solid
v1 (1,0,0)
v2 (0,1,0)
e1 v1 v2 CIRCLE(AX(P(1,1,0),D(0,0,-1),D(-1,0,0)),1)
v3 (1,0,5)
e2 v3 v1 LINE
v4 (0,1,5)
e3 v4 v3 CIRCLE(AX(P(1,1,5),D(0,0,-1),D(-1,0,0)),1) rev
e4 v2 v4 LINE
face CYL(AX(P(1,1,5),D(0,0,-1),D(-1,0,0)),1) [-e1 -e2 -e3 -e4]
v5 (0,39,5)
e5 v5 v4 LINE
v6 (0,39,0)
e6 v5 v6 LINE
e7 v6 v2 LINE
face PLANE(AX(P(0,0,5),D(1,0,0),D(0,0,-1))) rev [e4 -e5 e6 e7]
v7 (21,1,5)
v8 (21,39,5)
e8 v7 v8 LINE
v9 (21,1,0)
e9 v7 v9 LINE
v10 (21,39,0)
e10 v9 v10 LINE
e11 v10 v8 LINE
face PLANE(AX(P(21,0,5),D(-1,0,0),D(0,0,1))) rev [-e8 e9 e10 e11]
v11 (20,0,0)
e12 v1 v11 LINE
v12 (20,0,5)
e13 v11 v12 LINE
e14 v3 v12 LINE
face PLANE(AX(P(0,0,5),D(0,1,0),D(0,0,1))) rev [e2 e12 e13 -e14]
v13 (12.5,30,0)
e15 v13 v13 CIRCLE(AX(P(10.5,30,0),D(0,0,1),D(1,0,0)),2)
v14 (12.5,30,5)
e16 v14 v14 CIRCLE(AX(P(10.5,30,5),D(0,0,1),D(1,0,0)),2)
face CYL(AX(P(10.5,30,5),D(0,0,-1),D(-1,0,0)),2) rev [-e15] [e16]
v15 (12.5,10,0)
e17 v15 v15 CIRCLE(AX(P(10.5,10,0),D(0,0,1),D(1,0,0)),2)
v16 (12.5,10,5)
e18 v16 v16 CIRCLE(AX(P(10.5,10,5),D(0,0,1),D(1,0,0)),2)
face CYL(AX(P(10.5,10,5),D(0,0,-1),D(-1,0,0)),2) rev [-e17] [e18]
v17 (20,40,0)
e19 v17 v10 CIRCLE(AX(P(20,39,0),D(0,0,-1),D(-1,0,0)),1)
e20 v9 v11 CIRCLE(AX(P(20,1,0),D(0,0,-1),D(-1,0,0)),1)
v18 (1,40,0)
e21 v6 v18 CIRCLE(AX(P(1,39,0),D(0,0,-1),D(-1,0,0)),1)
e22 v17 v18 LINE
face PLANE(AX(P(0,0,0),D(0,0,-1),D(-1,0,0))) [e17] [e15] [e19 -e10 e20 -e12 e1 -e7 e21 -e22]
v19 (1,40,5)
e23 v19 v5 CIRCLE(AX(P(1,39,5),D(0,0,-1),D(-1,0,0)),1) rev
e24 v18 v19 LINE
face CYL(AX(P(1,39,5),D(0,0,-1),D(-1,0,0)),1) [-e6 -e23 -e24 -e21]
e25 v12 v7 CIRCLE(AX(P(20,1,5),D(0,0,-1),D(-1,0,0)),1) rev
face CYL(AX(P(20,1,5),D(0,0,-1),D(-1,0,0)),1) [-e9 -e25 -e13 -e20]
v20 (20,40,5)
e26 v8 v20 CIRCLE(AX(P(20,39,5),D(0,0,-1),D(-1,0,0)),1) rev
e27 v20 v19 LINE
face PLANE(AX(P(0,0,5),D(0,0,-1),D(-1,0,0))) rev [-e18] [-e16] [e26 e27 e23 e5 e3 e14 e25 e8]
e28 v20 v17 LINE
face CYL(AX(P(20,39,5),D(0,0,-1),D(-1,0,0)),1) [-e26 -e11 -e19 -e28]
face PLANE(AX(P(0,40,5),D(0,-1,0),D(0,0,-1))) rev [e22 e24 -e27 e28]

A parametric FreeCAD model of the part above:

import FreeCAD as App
import Part
import Sketcher


def edges_at(feature, points):
    """Names of the edges that pass closest to the given points."""
    edges = feature.Shape.Edges
    near = lambda p: min(range(len(edges)), key=lambda i: edges[i].distToShape(Part.Vertex(*p))[0])
    return sorted({f"Edge{near(p) + 1}" for p in points})

doc = App.newDocument("Part")
body = doc.addObject("PartDesign::Body", "Body")

sketch1 = body.newObject("Sketcher::SketchObject", "Sketch")
sketch1.AttachmentSupport = (doc.getObject("XY_Plane"), [""])
sketch1.MapMode = "FlatFace"
sketch1.addGeometry([
    Part.LineSegment(App.Vector(0, 40, 0), App.Vector(0, 0, 0)),
    Part.LineSegment(App.Vector(0, 0, 0), App.Vector(21, 0, 0)),
    Part.LineSegment(App.Vector(21, 0, 0), App.Vector(21, 40, 0)),
    Part.LineSegment(App.Vector(21, 40, 0), App.Vector(0, 40, 0)),
    Part.Circle(App.Vector(10.5, 10, 0), App.Vector(0, 0, 1), 2),
    Part.Circle(App.Vector(10.5, 30, 0), App.Vector(0, 0, 1), 2),
], False)
sketch1.addConstraint([
    Sketcher.Constraint("Coincident", 0, 2, 1, 1),
    Sketcher.Constraint("Coincident", 1, 2, 2, 1),
    Sketcher.Constraint("Coincident", 2, 2, 3, 1),
    Sketcher.Constraint("Coincident", 3, 2, 0, 1),
    Sketcher.Constraint("Vertical", 0),
    Sketcher.Constraint("Horizontal", 1),
    Sketcher.Constraint("Vertical", 2),
    Sketcher.Constraint("Horizontal", 3),
    Sketcher.Constraint("Coincident", 0, 2, -1, 1),
    Sketcher.Constraint("Equal", 4, 5),
    Sketcher.Constraint("Vertical", 4, 3, 5, 3),
    Sketcher.Constraint("Diameter", 4, 4.0),
    Sketcher.Constraint("DistanceX", 1, 1, 1, 2, 21.0),
    Sketcher.Constraint("DistanceY", 0, 2, 0, 1, 40.0),
    Sketcher.Constraint("DistanceY", -1, 1, 4, 3, 10.0),
    Sketcher.Constraint("DistanceY", -1, 1, 5, 3, 30.0),
    Sketcher.Constraint("DistanceX", -1, 1, 4, 3, 10.5),
])
pad1 = body.newObject("PartDesign::Pad", "Pad")
pad1.Profile = sketch1
pad1.Length = 5
doc.recompute()

fillet = body.newObject("PartDesign::Fillet", "Fillet")
fillet.Base = (pad1, edges_at(pad1, [
    (0, 40, 2.5),
    (21, 40, 2.5),
    (21, 0, 2.5),
    (0, 0, 2.5),
]))
fillet.Radius = 1

doc.recompute()
